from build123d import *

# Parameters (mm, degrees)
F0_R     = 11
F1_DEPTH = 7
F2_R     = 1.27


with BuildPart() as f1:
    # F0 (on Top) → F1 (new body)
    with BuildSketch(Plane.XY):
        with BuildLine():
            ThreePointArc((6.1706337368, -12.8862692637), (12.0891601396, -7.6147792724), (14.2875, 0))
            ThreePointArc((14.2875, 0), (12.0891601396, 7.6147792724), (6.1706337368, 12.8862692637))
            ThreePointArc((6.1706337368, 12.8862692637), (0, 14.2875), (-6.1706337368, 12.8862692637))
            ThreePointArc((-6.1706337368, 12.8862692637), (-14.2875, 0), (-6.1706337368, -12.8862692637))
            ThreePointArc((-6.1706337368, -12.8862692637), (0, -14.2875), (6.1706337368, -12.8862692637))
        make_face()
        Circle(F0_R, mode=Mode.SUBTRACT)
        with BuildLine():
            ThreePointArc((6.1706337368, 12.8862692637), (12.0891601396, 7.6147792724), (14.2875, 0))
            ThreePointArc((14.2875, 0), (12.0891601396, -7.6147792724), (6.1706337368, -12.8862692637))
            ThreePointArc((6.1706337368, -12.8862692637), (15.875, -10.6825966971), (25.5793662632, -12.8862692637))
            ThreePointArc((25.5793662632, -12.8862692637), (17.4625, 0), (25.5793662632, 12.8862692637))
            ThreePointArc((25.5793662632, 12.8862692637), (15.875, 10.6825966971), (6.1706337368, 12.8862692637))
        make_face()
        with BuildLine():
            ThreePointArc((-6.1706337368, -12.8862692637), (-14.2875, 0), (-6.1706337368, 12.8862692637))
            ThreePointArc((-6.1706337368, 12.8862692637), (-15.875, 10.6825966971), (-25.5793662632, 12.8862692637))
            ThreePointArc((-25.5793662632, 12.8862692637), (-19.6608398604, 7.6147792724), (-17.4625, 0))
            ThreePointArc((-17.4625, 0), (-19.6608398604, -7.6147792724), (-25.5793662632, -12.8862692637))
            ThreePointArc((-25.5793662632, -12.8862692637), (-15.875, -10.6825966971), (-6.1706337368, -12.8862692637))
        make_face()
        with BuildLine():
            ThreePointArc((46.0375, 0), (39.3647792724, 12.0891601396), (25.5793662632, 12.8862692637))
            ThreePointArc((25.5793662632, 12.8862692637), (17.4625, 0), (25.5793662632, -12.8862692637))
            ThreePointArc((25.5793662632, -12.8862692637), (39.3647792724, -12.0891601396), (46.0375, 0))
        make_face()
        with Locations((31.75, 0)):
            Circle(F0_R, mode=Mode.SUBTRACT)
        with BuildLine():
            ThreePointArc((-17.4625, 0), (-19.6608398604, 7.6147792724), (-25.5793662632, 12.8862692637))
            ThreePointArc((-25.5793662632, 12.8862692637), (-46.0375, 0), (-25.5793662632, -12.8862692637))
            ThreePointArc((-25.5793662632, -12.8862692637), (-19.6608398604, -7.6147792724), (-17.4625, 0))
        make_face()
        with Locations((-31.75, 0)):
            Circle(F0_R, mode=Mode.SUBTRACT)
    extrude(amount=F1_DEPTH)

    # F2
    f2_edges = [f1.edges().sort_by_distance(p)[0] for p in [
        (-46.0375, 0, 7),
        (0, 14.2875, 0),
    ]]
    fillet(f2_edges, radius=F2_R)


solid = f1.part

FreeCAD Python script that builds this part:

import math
import FreeCAD as App
import Part
import Sketcher
from FreeCAD import Vector


def edges_at(feature, points):
    """Names of the edges that pass closest to the given points."""
    edges = feature.Shape.Edges
    near = lambda p: min(range(len(edges)), key=lambda i: edges[i].distToShape(Part.Vertex(*p))[0])
    return sorted({f"Edge{near(p) + 1}" for p in points})

doc = App.newDocument("Part")
params = doc.addObject("Spreadsheet::Sheet", "Params")
for row, (alias, value) in enumerate([
    ("sketch1_diameter", "22 mm"),
    ("pad1_length", "7 mm"),
    ("fillet_radius", "1.27 mm"),
], start=1):
    params.set(f"A{row}", alias)
    params.set(f"B{row}", "=" + value)
    params.setAlias(f"B{row}", alias)

body = doc.addObject("PartDesign::Body", "Body")

# Sketch on XY plane
sketch1 = doc.addObject("Sketcher::SketchObject", "Sketch")
body.addObject(sketch1)
sketch1.AttachmentSupport = (doc.XY_Plane, [""])
sketch1.MapMode = "FlatFace"
sketch1.addGeometry(Part.ArcOfCircle(Part.Circle(Vector(0, 0, 0), Vector(0, 0, 1), 14), math.radians(-116), math.radians(-64)), False)
sketch1.addGeometry(Part.ArcOfCircle(Part.Circle(Vector(16, -33, 0), Vector(0, 0, 1), 22), math.radians(64), math.radians(116)), False)
sketch1.addGeometry(Part.ArcOfCircle(Part.Circle(Vector(32, 0, 0), Vector(0, 0, 1), 14), math.radians(-116), math.radians(0)), False)
sketch1.addGeometry(Part.ArcOfCircle(Part.Circle(Vector(32, 0, 0), Vector(0, 0, 1), 14), math.radians(0), math.radians(116)), False)
sketch1.addGeometry(Part.ArcOfCircle(Part.Circle(Vector(16, 33, 0), Vector(0, 0, 1), 22), math.radians(-116), math.radians(-64)), False)
sketch1.addGeometry(Part.ArcOfCircle(Part.Circle(Vector(0, 0, 0), Vector(0, 0, 1), 14), math.radians(64), math.radians(116)), False)
sketch1.addGeometry(Part.ArcOfCircle(Part.Circle(Vector(-16, 33, 0), Vector(0, 0, 1), 22), math.radians(-116), math.radians(-64)), False)
sketch1.addGeometry(Part.ArcOfCircle(Part.Circle(Vector(-32, 0, 0), Vector(0, 0, 1), 14), math.radians(64), math.radians(296)), False)
sketch1.addGeometry(Part.ArcOfCircle(Part.Circle(Vector(-16, -33, 0), Vector(0, 0, 1), 22), math.radians(64), math.radians(116)), False)
sketch1.addGeometry(Part.Circle(Vector(-32, 0, 0), Vector(0, 0, 1), 11), False)
sketch1.addGeometry(Part.Circle(Vector(0, 0, 0), Vector(0, 0, 1), 11), False)
sketch1.addGeometry(Part.Circle(Vector(32, 0, 0), Vector(0, 0, 1), 11), False)
sketch1.addConstraint(Sketcher.Constraint("Tangent", 0, 2, 1, 2))
sketch1.addConstraint(Sketcher.Constraint("Tangent", 1, 1, 2, 1))
sketch1.addConstraint(Sketcher.Constraint("Tangent", 2, 2, 3, 1))
sketch1.addConstraint(Sketcher.Constraint("Tangent", 3, 2, 4, 2))
sketch1.addConstraint(Sketcher.Constraint("Tangent", 4, 1, 5, 1))
sketch1.addConstraint(Sketcher.Constraint("Tangent", 5, 2, 6, 2))
sketch1.addConstraint(Sketcher.Constraint("Tangent", 6, 1, 7, 1))
sketch1.addConstraint(Sketcher.Constraint("Tangent", 7, 2, 8, 2))
sketch1.addConstraint(Sketcher.Constraint("Tangent", 8, 1, 0, 1))
sketch1.addConstraint(Sketcher.Constraint("Coincident", 0, 3, -1, 1))
sketch1.addConstraint(Sketcher.Constraint("Coincident", 5, 3, -1, 1))
sketch1.addConstraint(Sketcher.Constraint("Coincident", 10, 3, -1, 1))
sketch1.addConstraint(Sketcher.Constraint("Coincident", 9, 3, 7, 3))
sketch1.addConstraint(Sketcher.Constraint("Coincident", 11, 3, 2, 3))
sketch1.addConstraint(Sketcher.Constraint("Equal", 0, 2))
sketch1.addConstraint(Sketcher.Constraint("Equal", 2, 3))
sketch1.addConstraint(Sketcher.Constraint("Equal", 1, 4))
sketch1.addConstraint(Sketcher.Constraint("Equal", 3, 5))
sketch1.addConstraint(Sketcher.Constraint("Equal", 4, 6))
sketch1.addConstraint(Sketcher.Constraint("Equal", 5, 7))
sketch1.addConstraint(Sketcher.Constraint("Equal", 6, 8))
sketch1.addConstraint(Sketcher.Constraint("Equal", 9, 10))
sketch1.addConstraint(Sketcher.Constraint("Equal", 10, 11))
sketch1.addConstraint(Sketcher.Constraint("Symmetric", 2, 3, 7, 3, -1, 1))
sketch1.addConstraint(Sketcher.Constraint("PointOnObject", 2, 3, -1))
sketch1.addConstraint(Sketcher.Constraint("PointOnObject", 2, 2, -1))
sketch1.addConstraint(Sketcher.Constraint("Diameter", 9, 22.0))
sketch1.addConstraint(Sketcher.Constraint("Radius", 0, 14.2875))
sketch1.addConstraint(Sketcher.Constraint("DistanceX", -1, 1, 2, 3, 31.75))
sketch1.addConstraint(Sketcher.Constraint("Radius", 1, 22.469513))
sketch1.setExpression("Constraints[26]", "Params.sketch1_diameter")
pad1 = doc.addObject("PartDesign::Pad", "Pad")
body.addObject(pad1)
pad1.Profile = sketch1
pad1.setExpression("Length", "Params.pad1_length")
doc.recompute()

fillet = doc.addObject("PartDesign::Fillet", "Fillet")
body.addObject(fillet)
fillet.Base = (pad1, edges_at(pad1, [(-46.038, 0, 7), (0, 14.287, 0)]))
fillet.setExpression("Radius", "Params.fillet_radius")

doc.recompute()
